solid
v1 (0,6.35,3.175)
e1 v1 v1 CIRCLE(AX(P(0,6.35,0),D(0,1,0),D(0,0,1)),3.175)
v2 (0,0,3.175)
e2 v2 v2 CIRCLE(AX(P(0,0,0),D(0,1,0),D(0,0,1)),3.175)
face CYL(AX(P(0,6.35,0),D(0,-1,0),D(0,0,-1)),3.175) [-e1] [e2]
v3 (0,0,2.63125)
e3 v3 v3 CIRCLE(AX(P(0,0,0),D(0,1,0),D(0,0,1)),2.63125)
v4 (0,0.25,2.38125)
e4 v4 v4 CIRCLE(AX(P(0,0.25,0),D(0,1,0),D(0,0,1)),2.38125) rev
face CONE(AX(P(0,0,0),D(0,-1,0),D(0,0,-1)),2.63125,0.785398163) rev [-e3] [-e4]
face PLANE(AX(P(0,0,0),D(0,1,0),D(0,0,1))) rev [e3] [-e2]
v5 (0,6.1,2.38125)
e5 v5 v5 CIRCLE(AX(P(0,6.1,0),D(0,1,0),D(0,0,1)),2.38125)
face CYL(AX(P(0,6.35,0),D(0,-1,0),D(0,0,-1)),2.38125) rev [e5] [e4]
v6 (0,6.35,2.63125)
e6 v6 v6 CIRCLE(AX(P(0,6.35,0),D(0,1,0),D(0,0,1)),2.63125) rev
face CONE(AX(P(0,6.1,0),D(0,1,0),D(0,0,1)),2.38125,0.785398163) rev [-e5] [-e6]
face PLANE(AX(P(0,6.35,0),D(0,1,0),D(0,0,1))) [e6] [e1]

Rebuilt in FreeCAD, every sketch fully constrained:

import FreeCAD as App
import Part
import Sketcher

V = App.Vector
Q = App.Units.Quantity


def edges_at(feature, points):
    """Names of the edges that pass closest to the given points."""
    edges = feature.Shape.Edges
    near = lambda p: min(range(len(edges)), key=lambda i: edges[i].distToShape(Part.Vertex(*p))[0])
    return sorted({f"Edge{near(p) + 1}" for p in points})

doc = App.newDocument("Part")
body = doc.addObject("PartDesign::Body", "Body")

sketch1 = doc.addObject("Sketcher::SketchObject", "Sketch")
body.addObject(sketch1)
sketch1.AttachmentSupport = (doc.XZ_Plane, [""])
sketch1.MapMode = "FlatFace"
sketch1.addGeometry([
    Part.Circle(V(0, 0, 0), V(0, 0, 1), 3.2),
    Part.Circle(V(0, 0, 0), V(0, 0, 1), 2.4),
], False)
sketch1.addConstraint([
    Sketcher.Constraint("Coincident", 0, 3, -1, 1),
    Sketcher.Constraint("Coincident", 1, 3, -1, 1),
    Sketcher.Constraint("Diameter", 0, Q("0.25 in")),
    Sketcher.Constraint("Diameter", 1, Q("0.1875 in")),
])
pad1 = doc.addObject("PartDesign::Pad", "Pad")
body.addObject(pad1)
pad1.Profile = sketch1
pad1.Length = Q("0.25 in")
pad1.Reversed = True
doc.recompute()

chamfer = doc.addObject("PartDesign::Chamfer", "Chamfer")
body.addObject(chamfer)
chamfer.Base = (pad1, edges_at(pad1, [(-2.381, 0, 0), (-2.381, 6.35, 0)]))
chamfer.Size = 0.25

doc.recompute()
